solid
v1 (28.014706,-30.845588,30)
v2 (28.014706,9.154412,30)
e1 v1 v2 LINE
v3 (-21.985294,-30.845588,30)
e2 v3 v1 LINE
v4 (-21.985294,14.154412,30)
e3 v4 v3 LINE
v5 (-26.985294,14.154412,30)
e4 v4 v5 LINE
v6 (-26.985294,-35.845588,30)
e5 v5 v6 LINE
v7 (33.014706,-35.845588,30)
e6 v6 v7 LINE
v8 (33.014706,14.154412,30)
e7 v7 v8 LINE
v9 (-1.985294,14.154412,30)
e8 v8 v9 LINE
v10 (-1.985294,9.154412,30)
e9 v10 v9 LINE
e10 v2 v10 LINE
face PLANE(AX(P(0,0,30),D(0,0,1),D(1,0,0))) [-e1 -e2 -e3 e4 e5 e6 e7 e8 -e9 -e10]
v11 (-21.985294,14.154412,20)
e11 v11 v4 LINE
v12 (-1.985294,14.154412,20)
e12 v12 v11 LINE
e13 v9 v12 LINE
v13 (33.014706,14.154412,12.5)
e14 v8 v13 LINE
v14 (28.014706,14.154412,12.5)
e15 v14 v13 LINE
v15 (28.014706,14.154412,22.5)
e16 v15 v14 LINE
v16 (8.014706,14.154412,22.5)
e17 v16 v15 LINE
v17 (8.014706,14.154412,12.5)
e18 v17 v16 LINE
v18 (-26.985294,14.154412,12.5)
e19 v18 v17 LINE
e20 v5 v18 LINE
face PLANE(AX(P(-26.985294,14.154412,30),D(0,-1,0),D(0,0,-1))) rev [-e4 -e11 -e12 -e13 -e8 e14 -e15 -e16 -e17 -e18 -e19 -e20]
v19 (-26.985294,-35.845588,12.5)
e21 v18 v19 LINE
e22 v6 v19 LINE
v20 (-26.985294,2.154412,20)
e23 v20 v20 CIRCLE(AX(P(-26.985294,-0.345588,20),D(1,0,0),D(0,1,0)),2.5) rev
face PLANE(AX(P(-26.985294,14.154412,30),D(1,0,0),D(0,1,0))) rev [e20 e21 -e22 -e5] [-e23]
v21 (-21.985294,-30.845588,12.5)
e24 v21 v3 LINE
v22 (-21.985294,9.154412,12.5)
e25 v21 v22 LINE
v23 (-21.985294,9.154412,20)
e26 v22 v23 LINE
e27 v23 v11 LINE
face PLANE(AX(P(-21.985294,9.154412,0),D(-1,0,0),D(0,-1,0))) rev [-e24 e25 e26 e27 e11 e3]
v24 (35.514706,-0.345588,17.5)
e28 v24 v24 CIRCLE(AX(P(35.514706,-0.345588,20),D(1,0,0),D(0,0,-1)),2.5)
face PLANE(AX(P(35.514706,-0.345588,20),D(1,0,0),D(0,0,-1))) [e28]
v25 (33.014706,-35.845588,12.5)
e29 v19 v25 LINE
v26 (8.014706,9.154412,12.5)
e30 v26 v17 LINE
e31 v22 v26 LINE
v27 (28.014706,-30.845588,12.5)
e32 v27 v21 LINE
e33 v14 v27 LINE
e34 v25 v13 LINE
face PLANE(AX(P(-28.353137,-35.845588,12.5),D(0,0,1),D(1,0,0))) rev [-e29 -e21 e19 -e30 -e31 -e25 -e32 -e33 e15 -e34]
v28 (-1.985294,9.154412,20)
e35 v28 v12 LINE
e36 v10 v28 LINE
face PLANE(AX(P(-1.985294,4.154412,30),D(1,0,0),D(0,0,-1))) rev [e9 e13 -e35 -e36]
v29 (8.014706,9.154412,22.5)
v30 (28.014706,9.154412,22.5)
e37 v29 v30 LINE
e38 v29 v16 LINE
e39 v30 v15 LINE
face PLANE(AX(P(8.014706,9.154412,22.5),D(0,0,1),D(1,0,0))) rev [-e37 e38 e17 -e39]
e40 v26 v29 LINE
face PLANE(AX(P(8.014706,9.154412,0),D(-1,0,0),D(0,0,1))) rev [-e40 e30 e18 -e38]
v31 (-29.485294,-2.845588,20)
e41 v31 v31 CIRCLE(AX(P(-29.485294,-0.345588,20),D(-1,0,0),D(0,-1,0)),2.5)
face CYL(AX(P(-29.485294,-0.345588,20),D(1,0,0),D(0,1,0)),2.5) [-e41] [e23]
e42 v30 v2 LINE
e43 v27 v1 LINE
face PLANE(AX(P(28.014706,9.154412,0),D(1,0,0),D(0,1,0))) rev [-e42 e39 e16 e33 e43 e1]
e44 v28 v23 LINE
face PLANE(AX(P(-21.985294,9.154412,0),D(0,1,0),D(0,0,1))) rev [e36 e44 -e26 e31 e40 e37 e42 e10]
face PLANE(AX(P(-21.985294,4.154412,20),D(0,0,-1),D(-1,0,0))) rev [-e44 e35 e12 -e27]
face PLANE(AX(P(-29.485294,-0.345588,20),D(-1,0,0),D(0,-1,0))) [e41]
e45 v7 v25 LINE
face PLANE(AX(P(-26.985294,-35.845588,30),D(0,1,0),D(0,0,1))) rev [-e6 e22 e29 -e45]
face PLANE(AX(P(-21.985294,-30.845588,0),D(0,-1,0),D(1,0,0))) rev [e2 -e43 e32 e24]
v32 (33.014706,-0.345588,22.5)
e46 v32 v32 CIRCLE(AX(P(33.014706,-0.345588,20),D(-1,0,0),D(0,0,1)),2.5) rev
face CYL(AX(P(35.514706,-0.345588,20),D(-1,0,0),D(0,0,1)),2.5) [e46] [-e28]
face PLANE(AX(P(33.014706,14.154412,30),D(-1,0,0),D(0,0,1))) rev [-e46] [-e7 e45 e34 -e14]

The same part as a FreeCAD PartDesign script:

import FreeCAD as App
import Part
import Sketcher

V = App.Vector


def add_polygon(sketch, points):
    """Adds a closed chain of lines whose ends are joined by coincident constraints."""
    first, n = sketch.GeometryCount, len(points)
    for a, b in zip(points, points[1:] + points[:1]):
        sketch.addGeometry(Part.LineSegment(App.Vector(*a, 0), App.Vector(*b, 0)), False)
    for i in range(n):
        sketch.addConstraint(Sketcher.Constraint("Coincident", first + i, 2, first + (i + 1) % n, 1))

doc = App.newDocument("Part")
body = doc.addObject("PartDesign::Body", "Body")

# Sketch on XY plane
sketch1 = body.newObject("Sketcher::SketchObject", "Sketch")
sketch1.AttachmentSupport = (doc.getObject("XY_Plane"), [""])
sketch1.MapMode = "FlatFace"
add_polygon(sketch1, [(-26.985294, 14.154412), (-26.985294, -35.845588), (33.014706, -35.845588), (33.014706, 14.154412)])  # lines 0-3
sketch1.addConstraint(Sketcher.Constraint("Vertical", 0))
sketch1.addConstraint(Sketcher.Constraint("Horizontal", 1))
sketch1.addConstraint(Sketcher.Constraint("Vertical", 2))
sketch1.addConstraint(Sketcher.Constraint("Horizontal", 3))
sketch1.addConstraint(Sketcher.Constraint("DistanceX", 1, 1, 1, 2, 60.0))
sketch1.addConstraint(Sketcher.Constraint("DistanceY", 0, 2, 0, 1, 50.0))
sketch1.addConstraint(Sketcher.Constraint("DistanceY", 0, 2, -1, 1, 35.845588))
sketch1.addConstraint(Sketcher.Constraint("DistanceX", 0, 2, -1, 1, 26.985294))
pad1 = body.newObject("PartDesign::Pad", "Pad")
pad1.Profile = sketch1
pad1.Length = 30

# Sketch on XY plane
sketch2 = body.newObject("Sketcher::SketchObject", "Sketch001")
sketch2.AttachmentSupport = (doc.getObject("XY_Plane"), [""])
sketch2.MapMode = "FlatFace"
sketch2.AttachmentOffset = App.Placement(V(0, 0, 30), App.Rotation())
add_polygon(sketch2, [(-21.985294, 9.154412), (-21.985294, -30.845588), (28.014706, -30.845588), (28.014706, 9.154412)])  # lines 0-3
sketch2.addConstraint(Sketcher.Constraint("Vertical", 0))
sketch2.addConstraint(Sketcher.Constraint("Horizontal", 1))
sketch2.addConstraint(Sketcher.Constraint("Vertical", 2))
sketch2.addConstraint(Sketcher.Constraint("Horizontal", 3))
sketch2.addConstraint(Sketcher.Constraint("DistanceX", 1, 1, 1, 2, 50.0))
sketch2.addConstraint(Sketcher.Constraint("DistanceY", 0, 2, 0, 1, 40.0))
sketch2.addConstraint(Sketcher.Constraint("DistanceY", 0, 2, -1, 1, 30.845588))
sketch2.addConstraint(Sketcher.Constraint("DistanceX", 0, 2, -1, 1, 21.985294))
pocket1 = body.newObject("PartDesign::Pocket", "Pocket")
pocket1.Profile = sketch2
pocket1.Type = "ThroughAll"

# Sketch on XZ plane
sketch3 = body.newObject("Sketcher::SketchObject", "Sketch002")
sketch3.AttachmentSupport = (doc.getObject("XZ_Plane"), [""])
sketch3.MapMode = "FlatFace"
sketch3.AttachmentOffset = App.Placement(V(0, 0, -14.154412), App.Rotation())
add_polygon(sketch3, [(8.014706, 0), (8.014706, 22.5), (28.014706, 22.5), (28.014706, 0)])  # lines 0-3
sketch3.addConstraint(Sketcher.Constraint("Vertical", 0))
sketch3.addConstraint(Sketcher.Constraint("Horizontal", 1))
sketch3.addConstraint(Sketcher.Constraint("Vertical", 2))
sketch3.addConstraint(Sketcher.Constraint("Horizontal", 3))
sketch3.addConstraint(Sketcher.Constraint("PointOnObject", 2, 2, -1))
sketch3.addConstraint(Sketcher.Constraint("DistanceX", 1, 1, 1, 2, 20.0))
sketch3.addConstraint(Sketcher.Constraint("DistanceY", 0, 1, 0, 2, 22.5))
sketch3.addConstraint(Sketcher.Constraint("DistanceX", -1, 1, 0, 2, 8.014706))
pocket2 = body.newObject("PartDesign::Pocket", "Pocket001")
pocket2.Profile = sketch3
pocket2.Length = 5
pocket2.Reversed = True

# Sketch on XZ plane
sketch4 = body.newObject("Sketcher::SketchObject", "Sketch003")
sketch4.AttachmentSupport = (doc.getObject("XZ_Plane"), [""])
sketch4.MapMode = "FlatFace"
sketch4.AttachmentOffset = App.Placement(V(0, 0, -14.154412), App.Rotation())
add_polygon(sketch4, [(-21.985294, 20), (-21.985294, 30), (-1.985294, 30), (-1.985294, 20)])  # lines 0-3
sketch4.addConstraint(Sketcher.Constraint("Vertical", 0))
sketch4.addConstraint(Sketcher.Constraint("Horizontal", 1))
sketch4.addConstraint(Sketcher.Constraint("Vertical", 2))
sketch4.addConstraint(Sketcher.Constraint("Horizontal", 3))
sketch4.addConstraint(Sketcher.Constraint("DistanceX", 1, 1, 1, 2, 20.0))
sketch4.addConstraint(Sketcher.Constraint("DistanceY", 0, 1, 0, 2, 10.0))
sketch4.addConstraint(Sketcher.Constraint("DistanceY", -1, 1, 0, 2, 30.0))
sketch4.addConstraint(Sketcher.Constraint("DistanceX", 0, 2, -1, 1, 21.985294))
pocket3 = body.newObject("PartDesign::Pocket", "Pocket002")
pocket3.Profile = sketch4
pocket3.Length = 10
pocket3.Reversed = True

# Sketch on XZ plane
sketch5 = body.newObject("Sketcher::SketchObject", "Sketch004")
sketch5.AttachmentSupport = (doc.getObject("XZ_Plane"), [""])
sketch5.MapMode = "FlatFace"
sketch5.AttachmentOffset = App.Placement(V(0, 0, -14.154412), App.Rotation())
add_polygon(sketch5, [(-28.353137, 0), (-28.353137, 12.5), (34.106363, 12.5), (34.106363, 0)])  # lines 0-3
sketch5.addConstraint(Sketcher.Constraint("Vertical", 0))
sketch5.addConstraint(Sketcher.Constraint("Horizontal", 1))
sketch5.addConstraint(Sketcher.Constraint("Vertical", 2))
sketch5.addConstraint(Sketcher.Constraint("Horizontal", 3))
sketch5.addConstraint(Sketcher.Constraint("PointOnObject", 2, 2, -1))
sketch5.addConstraint(Sketcher.Constraint("DistanceY", 0, 1, 0, 2, 12.5))
sketch5.addConstraint(Sketcher.Constraint("DistanceX", 1, 1, 1, 2, 62.459499))
sketch5.addConstraint(Sketcher.Constraint("DistanceX", 0, 2, -1, 1, 28.353137))
pocket4 = body.newObject("PartDesign::Pocket", "Pocket003")
pocket4.Profile = sketch5
pocket4.Type = "ThroughAll"
pocket4.Reversed = True

# Sketch on YZ plane
sketch6 = body.newObject("Sketcher::SketchObject", "Sketch005")
sketch6.AttachmentSupport = (doc.getObject("YZ_Plane"), [""])
sketch6.MapMode = "FlatFace"
sketch6.AttachmentOffset = App.Placement(V(0, 0, 33.014706), App.Rotation())
sketch6.addGeometry(Part.Circle(V(-0.345588, 20, 0), V(0, 0, 1), 2.5), False)
sketch6.addConstraint(Sketcher.Constraint("Diameter", 0, 5.0))
sketch6.addConstraint(Sketcher.Constraint("DistanceY", -1, 1, 0, 3, 20.0))
sketch6.addConstraint(Sketcher.Constraint("DistanceX", 0, 3, -1, 1, 0.345588))
pad2 = body.newObject("PartDesign::Pad", "Pad001")
pad2.Profile = sketch6
pad2.Length = 2.5

# Sketch on YZ plane
sketch7 = body.newObject("Sketcher::SketchObject", "Sketch006")
sketch7.AttachmentSupport = (doc.getObject("YZ_Plane"), [""])
sketch7.MapMode = "FlatFace"
sketch7.AttachmentOffset = App.Placement(V(0, 0, -29.485294), App.Rotation())
sketch7.addGeometry(Part.Circle(V(-0.345588, 20, 0), V(0, 0, 1), 2.5), False)
sketch7.addConstraint(Sketcher.Constraint("Diameter", 0, 5.0))
sketch7.addConstraint(Sketcher.Constraint("DistanceY", -1, 1, 0, 3, 20.0))
sketch7.addConstraint(Sketcher.Constraint("DistanceX", 0, 3, -1, 1, 0.345588))
pad3 = body.newObject("PartDesign::Pad", "Pad002")
pad3.Profile = sketch7
pad3.Length = 2.5

doc.recompute()
